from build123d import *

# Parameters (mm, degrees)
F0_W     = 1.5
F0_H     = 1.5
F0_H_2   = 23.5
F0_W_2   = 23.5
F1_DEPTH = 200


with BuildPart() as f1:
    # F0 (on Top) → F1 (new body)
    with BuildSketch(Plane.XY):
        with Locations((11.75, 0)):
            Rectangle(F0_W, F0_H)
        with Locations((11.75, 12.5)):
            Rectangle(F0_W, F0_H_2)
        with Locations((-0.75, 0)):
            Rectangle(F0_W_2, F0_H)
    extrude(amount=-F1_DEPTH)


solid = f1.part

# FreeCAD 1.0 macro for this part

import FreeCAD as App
import Part
import Sketcher
from FreeCAD import Vector
Q = App.Units.Quantity


def add_polygon(sketch, points):
    """Adds a closed chain of lines whose ends are joined by coincident constraints."""
    first, n = sketch.GeometryCount, len(points)
    for a, b in zip(points, points[1:] + points[:1]):
        sketch.addGeometry(Part.LineSegment(App.Vector(*a, 0), App.Vector(*b, 0)), False)
    for i in range(n):
        sketch.addConstraint(Sketcher.Constraint("Coincident", first + i, 2, first + (i + 1) % n, 1))

doc = App.newDocument("Part")
body = doc.addObject("PartDesign::Body", "Body")

# Sketch on XY plane
sketch1 = body.newObject("Sketcher::SketchObject", "Sketch")
sketch1.AttachmentSupport = (doc.getObject("XY_Plane"), [""])
sketch1.MapMode = "FlatFace"
add_polygon(sketch1, [(12.5, -0.8), (12.5, 24.2), (11, 24.2), (11, 0.8), (-12.5, 0.8), (-12.5, -0.8)])  # lines 0-5
sketch1.addConstraint([
    Sketcher.Constraint("Vertical", 0),
    Sketcher.Constraint("Horizontal", 1),
    Sketcher.Constraint("Vertical", 2),
    Sketcher.Constraint("Horizontal", 3),
    Sketcher.Constraint("Vertical", 4),
    Sketcher.Constraint("Horizontal", 5),
    Sketcher.Constraint("Symmetric", 3, 2, 5, 2, -1, 1),
    Sketcher.Constraint("Equal", 5, 0),
    Sketcher.Constraint("Equal", 3, 2),
    Sketcher.Constraint("DistanceX", 5, 1, 5, 2, Q("25 mm")),
    Sketcher.Constraint("DistanceX", 1, 2, 1, 1, Q("1.5 mm")),
])
pad1 = body.newObject("PartDesign::Pad", "Pad")
pad1.Profile = sketch1
pad1.Length = 200
pad1.Reversed = True

doc.recompute()
